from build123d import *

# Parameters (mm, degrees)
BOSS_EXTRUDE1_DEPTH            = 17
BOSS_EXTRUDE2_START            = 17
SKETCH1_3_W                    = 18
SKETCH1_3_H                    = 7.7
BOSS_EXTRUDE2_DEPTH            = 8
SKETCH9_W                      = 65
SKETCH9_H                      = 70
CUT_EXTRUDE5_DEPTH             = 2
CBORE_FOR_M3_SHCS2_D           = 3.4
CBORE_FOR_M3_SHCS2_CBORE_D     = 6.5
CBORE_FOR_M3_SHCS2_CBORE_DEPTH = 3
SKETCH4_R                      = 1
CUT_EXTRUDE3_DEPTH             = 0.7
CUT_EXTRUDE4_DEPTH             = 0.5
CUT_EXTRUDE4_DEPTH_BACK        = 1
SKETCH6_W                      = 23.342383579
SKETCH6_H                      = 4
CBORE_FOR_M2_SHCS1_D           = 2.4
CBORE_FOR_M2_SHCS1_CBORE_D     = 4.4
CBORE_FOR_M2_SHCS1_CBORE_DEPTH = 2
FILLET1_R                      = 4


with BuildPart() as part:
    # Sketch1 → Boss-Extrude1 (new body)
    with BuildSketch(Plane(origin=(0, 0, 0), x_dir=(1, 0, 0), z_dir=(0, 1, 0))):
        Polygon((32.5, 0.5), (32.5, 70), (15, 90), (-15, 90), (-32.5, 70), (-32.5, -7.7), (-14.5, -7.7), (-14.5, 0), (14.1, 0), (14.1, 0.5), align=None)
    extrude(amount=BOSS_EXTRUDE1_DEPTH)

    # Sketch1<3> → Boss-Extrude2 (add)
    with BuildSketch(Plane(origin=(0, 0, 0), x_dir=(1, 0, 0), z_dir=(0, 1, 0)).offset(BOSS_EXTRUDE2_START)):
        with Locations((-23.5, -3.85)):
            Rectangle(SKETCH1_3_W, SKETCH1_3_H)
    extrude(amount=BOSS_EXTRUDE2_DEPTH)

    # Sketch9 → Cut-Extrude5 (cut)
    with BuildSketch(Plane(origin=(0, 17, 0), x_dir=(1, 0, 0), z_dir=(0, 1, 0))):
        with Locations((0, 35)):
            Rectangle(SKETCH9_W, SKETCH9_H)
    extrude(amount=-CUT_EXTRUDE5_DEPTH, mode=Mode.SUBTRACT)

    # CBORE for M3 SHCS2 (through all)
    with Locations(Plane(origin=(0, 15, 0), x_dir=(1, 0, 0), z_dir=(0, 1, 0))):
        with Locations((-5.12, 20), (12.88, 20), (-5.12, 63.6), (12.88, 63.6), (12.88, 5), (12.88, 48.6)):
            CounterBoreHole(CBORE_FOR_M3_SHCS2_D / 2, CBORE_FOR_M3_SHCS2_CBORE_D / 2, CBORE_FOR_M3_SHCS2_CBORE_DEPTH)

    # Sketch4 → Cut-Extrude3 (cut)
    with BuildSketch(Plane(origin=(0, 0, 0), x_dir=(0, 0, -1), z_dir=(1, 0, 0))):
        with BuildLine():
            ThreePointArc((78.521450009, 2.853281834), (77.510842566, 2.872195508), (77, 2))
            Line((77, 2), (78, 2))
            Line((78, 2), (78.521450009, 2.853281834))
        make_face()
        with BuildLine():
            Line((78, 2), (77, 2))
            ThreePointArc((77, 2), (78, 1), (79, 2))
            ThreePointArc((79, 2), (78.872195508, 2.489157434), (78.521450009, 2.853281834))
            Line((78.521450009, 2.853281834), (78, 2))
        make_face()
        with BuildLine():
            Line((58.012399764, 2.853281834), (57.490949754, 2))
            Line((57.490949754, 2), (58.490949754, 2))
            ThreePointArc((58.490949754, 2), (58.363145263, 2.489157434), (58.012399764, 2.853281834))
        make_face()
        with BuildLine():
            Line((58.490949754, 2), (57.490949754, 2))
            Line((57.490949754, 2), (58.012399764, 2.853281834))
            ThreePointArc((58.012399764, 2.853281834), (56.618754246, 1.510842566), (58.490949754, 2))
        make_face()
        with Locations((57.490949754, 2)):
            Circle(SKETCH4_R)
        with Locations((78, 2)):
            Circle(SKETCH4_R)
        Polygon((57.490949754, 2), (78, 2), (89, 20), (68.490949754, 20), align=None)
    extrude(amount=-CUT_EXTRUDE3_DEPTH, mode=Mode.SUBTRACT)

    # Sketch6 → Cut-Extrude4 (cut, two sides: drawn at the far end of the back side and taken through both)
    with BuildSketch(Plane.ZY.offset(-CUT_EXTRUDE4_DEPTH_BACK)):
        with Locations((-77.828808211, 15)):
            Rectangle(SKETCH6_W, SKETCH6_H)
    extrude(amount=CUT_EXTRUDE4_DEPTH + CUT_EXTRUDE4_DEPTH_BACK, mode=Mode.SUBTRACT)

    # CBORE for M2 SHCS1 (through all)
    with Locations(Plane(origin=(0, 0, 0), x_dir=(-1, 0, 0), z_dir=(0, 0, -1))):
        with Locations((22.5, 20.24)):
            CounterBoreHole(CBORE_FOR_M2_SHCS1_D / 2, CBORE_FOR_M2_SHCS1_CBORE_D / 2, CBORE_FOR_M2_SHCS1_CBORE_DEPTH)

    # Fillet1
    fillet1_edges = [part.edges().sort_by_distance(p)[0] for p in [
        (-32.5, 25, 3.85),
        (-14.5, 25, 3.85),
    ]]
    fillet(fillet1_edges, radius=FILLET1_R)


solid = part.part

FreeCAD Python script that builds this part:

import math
import FreeCAD as App
import Part
import Sketcher


def edges_at(feature, points):
    """Names of the edges that pass closest to the given points."""
    edges = feature.Shape.Edges
    near = lambda p: min(range(len(edges)), key=lambda i: edges[i].distToShape(Part.Vertex(*p))[0])
    return sorted({f"Edge{near(p) + 1}" for p in points})


def add_polygon(sketch, points):
    """Adds a closed chain of lines whose ends are joined by coincident constraints."""
    first, n = sketch.GeometryCount, len(points)
    for a, b in zip(points, points[1:] + points[:1]):
        sketch.addGeometry(Part.LineSegment(App.Vector(*a, 0), App.Vector(*b, 0)), False)
    for i in range(n):
        sketch.addConstraint(Sketcher.Constraint("Coincident", first + i, 2, first + (i + 1) % n, 1))

doc = App.newDocument("Part")
body = doc.addObject("PartDesign::Body", "Body")

sketch1 = doc.addObject("Sketcher::SketchObject", "Sketch")
body.addObject(sketch1)
sketch1.AttachmentSupport = (doc.XZ_Plane, [""])
sketch1.MapMode = "FlatFace"
add_polygon(sketch1, [(32.5, -0.5), (32.5, -70), (15, -90), (-15, -90), (-32.5, -70), (-32.5, 7.7), (-14.5, 7.7), (-14.5, 0), (14.1, 0), (14.1, -0.5)])
sketch1.addConstraint(Sketcher.Constraint("Vertical", 0))
sketch1.addConstraint(Sketcher.Constraint("Horizontal", 2))
sketch1.addConstraint(Sketcher.Constraint("Vertical", 4))
sketch1.addConstraint(Sketcher.Constraint("Horizontal", 5))
sketch1.addConstraint(Sketcher.Constraint("Vertical", 6))
sketch1.addConstraint(Sketcher.Constraint("Horizontal", 7))
sketch1.addConstraint(Sketcher.Constraint("Vertical", 8))
sketch1.addConstraint(Sketcher.Constraint("Horizontal", 9))
sketch1.addConstraint(Sketcher.Constraint("Symmetric", 0, 2, 3, 2, -2))
sketch1.addConstraint(Sketcher.Constraint("PointOnObject", 6, 2, -1))
sketch1.addConstraint(Sketcher.Constraint("Equal", 1, 3))
sketch1.addConstraint(Sketcher.Constraint("DistanceX", 2, 2, 2, 1, 30.0))
sketch1.addConstraint(Sketcher.Constraint("DistanceX", 5, 1, 5, 2, 18.0))
sketch1.addConstraint(Sketcher.Constraint("DistanceX", 7, 1, 7, 2, 28.6))
sketch1.addConstraint(Sketcher.Constraint("DistanceX", 9, 1, 9, 2, 18.4))
sketch1.addConstraint(Sketcher.Constraint("DistanceY", 0, 2, 0, 1, 69.5))
sketch1.addConstraint(Sketcher.Constraint("DistanceY", 4, 1, 4, 2, 77.7))
sketch1.addConstraint(Sketcher.Constraint("DistanceY", 6, 2, 6, 1, 7.7))
sketch1.addConstraint(Sketcher.Constraint("DistanceY", 1, 2, -1, 1, 90.0))
pad1 = doc.addObject("PartDesign::Pad", "Pad")
body.addObject(pad1)
pad1.Profile = sketch1
pad1.Length = 17
pad1.Reversed = True

sketch2 = doc.addObject("Sketcher::SketchObject", "Sketch001")
body.addObject(sketch2)
sketch2.AttachmentSupport = (doc.XZ_Plane, [""])
sketch2.MapMode = "FlatFace"
sketch2.AttachmentOffset = App.Placement(App.Vector(0, 0, -17), App.Rotation())
add_polygon(sketch2, [(-32, 0), (-32, 8), (-14, 8), (-14, 0)])
sketch2.addConstraint(Sketcher.Constraint("Vertical", 0))
sketch2.addConstraint(Sketcher.Constraint("Horizontal", 1))
sketch2.addConstraint(Sketcher.Constraint("Vertical", 2))
sketch2.addConstraint(Sketcher.Constraint("Horizontal", 3))
sketch2.addConstraint(Sketcher.Constraint("PointOnObject", 2, 2, -1))
sketch2.addConstraint(Sketcher.Constraint("DistanceX", 1, 1, 1, 2, 18.0))
sketch2.addConstraint(Sketcher.Constraint("DistanceY", 0, 1, 0, 2, 7.7))
sketch2.addConstraint(Sketcher.Constraint("DistanceX", 0, 2, -1, 1, 32.5))
pad2 = doc.addObject("PartDesign::Pad", "Pad001")
body.addObject(pad2)
pad2.Profile = sketch2
pad2.Length = 8
pad2.Reversed = True

sketch3 = doc.addObject("Sketcher::SketchObject", "Sketch002")
body.addObject(sketch3)
sketch3.AttachmentSupport = (doc.XZ_Plane, [""])
sketch3.MapMode = "FlatFace"
sketch3.AttachmentOffset = App.Placement(App.Vector(0, 0, -17), App.Rotation())
add_polygon(sketch3, [(-32, -70), (-32, 0), (32, 0), (32, -70)])
sketch3.addConstraint(Sketcher.Constraint("Vertical", 0))
sketch3.addConstraint(Sketcher.Constraint("Horizontal", 1))
sketch3.addConstraint(Sketcher.Constraint("Vertical", 2))
sketch3.addConstraint(Sketcher.Constraint("Horizontal", 3))
sketch3.addConstraint(Sketcher.Constraint("Symmetric", 0, 2, 1, 2, -1, 1))
sketch3.addConstraint(Sketcher.Constraint("DistanceX", 1, 1, 1, 2, 65.0))
sketch3.addConstraint(Sketcher.Constraint("DistanceY", 0, 1, 0, 2, 70.0))
pocket1 = doc.addObject("PartDesign::Pocket", "Pocket")
body.addObject(pocket1)
pocket1.Profile = sketch3
pocket1.Length = 2
pocket1.Reversed = True

sketch4 = doc.addObject("Sketcher::SketchObject", "Sketch003")
body.addObject(sketch4)
sketch4.AttachmentSupport = (doc.XZ_Plane, [""])
sketch4.MapMode = "FlatFace"
sketch4.AttachmentOffset = App.Placement(App.Vector(0, 0, -15), App.Rotation())
sketch4.addGeometry(Part.Circle(App.Vector(-5.1, -20, 0), App.Vector(0, 0, 1), 1.7), False)
sketch4.addGeometry(Part.Circle(App.Vector(12.9, -20, 0), App.Vector(0, 0, 1), 1.7), False)
sketch4.addGeometry(Part.Circle(App.Vector(-5.1, -63.6, 0), App.Vector(0, 0, 1), 1.7), False)
sketch4.addGeometry(Part.Circle(App.Vector(12.9, -63.6, 0), App.Vector(0, 0, 1), 1.7), False)
sketch4.addGeometry(Part.Circle(App.Vector(12.9, -5, 0), App.Vector(0, 0, 1), 1.7), False)
sketch4.addGeometry(Part.Circle(App.Vector(12.9, -48.6, 0), App.Vector(0, 0, 1), 1.7), False)
sketch4.addConstraint(Sketcher.Constraint("Equal", 0, 1))
sketch4.addConstraint(Sketcher.Constraint("Equal", 1, 2))
sketch4.addConstraint(Sketcher.Constraint("Equal", 2, 3))
sketch4.addConstraint(Sketcher.Constraint("Equal", 3, 4))
sketch4.addConstraint(Sketcher.Constraint("Equal", 4, 5))
sketch4.addConstraint(Sketcher.Constraint("Horizontal", 0, 3, 1, 3))
sketch4.addConstraint(Sketcher.Constraint("Horizontal", 2, 3, 3, 3))
sketch4.addConstraint(Sketcher.Constraint("Vertical", 0, 3, 2, 3))
sketch4.addConstraint(Sketcher.Constraint("Vertical", 1, 3, 3, 3))
sketch4.addConstraint(Sketcher.Constraint("Vertical", 3, 3, 4, 3))
sketch4.addConstraint(Sketcher.Constraint("Vertical", 4, 3, 5, 3))
sketch4.addConstraint(Sketcher.Constraint("Diameter", 0, 3.4))
sketch4.addConstraint(Sketcher.Constraint("DistanceY", 0, 3, -1, 1, 20.0))
sketch4.addConstraint(Sketcher.Constraint("DistanceY", 4, 3, -1, 1, 5.0))
sketch4.addConstraint(Sketcher.Constraint("DistanceX", 0, 3, 1, 3, 18.0))
sketch4.addConstraint(Sketcher.Constraint("DistanceY", 3, 3, 5, 3, 15.0))
sketch4.addConstraint(Sketcher.Constraint("DistanceY", 2, 3, -1, 1, 63.6))
sketch4.addConstraint(Sketcher.Constraint("DistanceX", 0, 3, -1, 1, 5.12))
doc.recompute()
hole = doc.addObject("PartDesign::Hole", "Hole")
body.addObject(hole)
hole.Profile = sketch4
hole.ThreadType = "None"
hole.Diameter = 3.4
hole.DepthType = "ThroughAll"
hole.HoleCutType = "Counterbore"
hole.HoleCutDiameter = 6.5
hole.HoleCutDepth = 3
hole.Reversed = True

sketch5 = doc.addObject("Sketcher::SketchObject", "Sketch004")
body.addObject(sketch5)
sketch5.AttachmentSupport = (doc.YZ_Plane, [""])
sketch5.MapMode = "FlatFace"
sketch5.addGeometry(Part.ArcOfCircle(Part.Circle(App.Vector(2, -78, 0), App.Vector(0, 0, 1), 1), math.radians(-90), math.radians(-31)), False)
sketch5.addGeometry(Part.LineSegment(App.Vector(2.9, -78.5, 0), App.Vector(20, -89, 0)), False)
sketch5.addGeometry(Part.LineSegment(App.Vector(20, -89, 0), App.Vector(20, -68.5, 0)), False)
sketch5.addGeometry(Part.LineSegment(App.Vector(20, -68.5, 0), App.Vector(2.9, -58, 0)), False)
sketch5.addGeometry(Part.ArcOfCircle(Part.Circle(App.Vector(2, -57.5, 0), App.Vector(0, 0, 1), 1), math.radians(-31), math.radians(270)), False)
sketch5.addGeometry(Part.LineSegment(App.Vector(2, -58.5, 0), App.Vector(2, -77, 0)), False)
sketch5.addGeometry(Part.ArcOfCircle(Part.Circle(App.Vector(2, -78, 0), App.Vector(0, 0, 1), 1), math.radians(90), math.radians(270)), False)
sketch5.addConstraint(Sketcher.Constraint("Coincident", 0, 2, 1, 1))
sketch5.addConstraint(Sketcher.Constraint("Coincident", 1, 2, 2, 1))
sketch5.addConstraint(Sketcher.Constraint("Coincident", 2, 2, 3, 1))
sketch5.addConstraint(Sketcher.Constraint("Coincident", 3, 2, 4, 1))
sketch5.addConstraint(Sketcher.Constraint("Coincident", 4, 2, 5, 1))
sketch5.addConstraint(Sketcher.Constraint("Coincident", 5, 2, 6, 1))
sketch5.addConstraint(Sketcher.Constraint("Tangent", 6, 2, 0, 1))
sketch5.addConstraint(Sketcher.Constraint("Vertical", 2))
sketch5.addConstraint(Sketcher.Constraint("Vertical", 5))
sketch5.addConstraint(Sketcher.Constraint("Equal", 0, 4))
sketch5.addConstraint(Sketcher.Constraint("Equal", 4, 6))
sketch5.addConstraint(Sketcher.Constraint("Parallel", 1, 3))
sketch5.addConstraint(Sketcher.Constraint("Vertical", 0, 3, 4, 3))
sketch5.addConstraint(Sketcher.Constraint("Vertical", 0, 2, 3, 2))
sketch5.addConstraint(Sketcher.Constraint("Vertical", 6, 3, 4, 2))
sketch5.addConstraint(Sketcher.Constraint("Vertical", 5, 2, 6, 2))
sketch5.addConstraint(Sketcher.Constraint("Radius", 0, 1.0))
sketch5.addConstraint(Sketcher.Constraint("DistanceX", -1, 1, 0, 3, 2.0))
sketch5.addConstraint(Sketcher.Constraint("DistanceY", 0, 3, -1, 1, 78.0))
sketch5.addConstraint(Sketcher.Constraint("DistanceX", -1, 1, 1, 2, 20.0))
sketch5.addConstraint(Sketcher.Constraint("DistanceY", 1, 2, -1, 1, 89.0))
sketch5.addConstraint(Sketcher.Constraint("DistanceY", 2, 1, 2, 2, 20.50905))
sketch5.addConstraint(Sketcher.Constraint("DistanceY", 3, 2, -1, 1, 58.0124))
pocket2 = doc.addObject("PartDesign::Pocket", "Pocket001")
body.addObject(pocket2)
pocket2.Profile = sketch5
pocket2.Length = 0.7

sketch6 = doc.addObject("Sketcher::SketchObject", "Sketch005")
body.addObject(sketch6)
sketch6.AttachmentSupport = (doc.YZ_Plane, [""])
sketch6.MapMode = "FlatFace"
add_polygon(sketch6, [(17, -89.5), (13, -89.5), (13, -66.2), (17, -66.2)])
sketch6.addConstraint(Sketcher.Constraint("Horizontal", 0))
sketch6.addConstraint(Sketcher.Constraint("Vertical", 1))
sketch6.addConstraint(Sketcher.Constraint("Horizontal", 2))
sketch6.addConstraint(Sketcher.Constraint("Vertical", 3))
sketch6.addConstraint(Sketcher.Constraint("DistanceX", 0, 2, 0, 1, 4.0))
sketch6.addConstraint(Sketcher.Constraint("DistanceX", -1, 1, 0, 2, 13.0))
sketch6.addConstraint(Sketcher.Constraint("DistanceY", 0, 2, -1, 1, 89.5))
sketch6.addConstraint(Sketcher.Constraint("DistanceY", 1, 1, 1, 2, 23.342384))
pocket3 = doc.addObject("PartDesign::Pocket", "Pocket002")
body.addObject(pocket3)
pocket3.Profile = sketch6
pocket3.Type = "TwoLengths"
pocket3.Length = 0.5
pocket3.Length2 = 1

sketch7 = doc.addObject("Sketcher::SketchObject", "Sketch006")
body.addObject(sketch7)
sketch7.AttachmentSupport = (doc.XY_Plane, [""])
sketch7.MapMode = "FlatFace"
sketch7.addGeometry(Part.Circle(App.Vector(-22.5, 20.2, 0), App.Vector(0, 0, 1), 1.2), False)
sketch7.addConstraint(Sketcher.Constraint("Diameter", 0, 2.4))
sketch7.addConstraint(Sketcher.Constraint("DistanceX", 0, 3, -1, 1, 22.5))
sketch7.addConstraint(Sketcher.Constraint("DistanceY", -1, 1, 0, 3, 20.24))
doc.recompute()
hole2 = doc.addObject("PartDesign::Hole", "Hole001")
body.addObject(hole2)
hole2.Profile = sketch7
hole2.ThreadType = "None"
hole2.Diameter = 2.4
hole2.DepthType = "ThroughAll"
hole2.HoleCutType = "Counterbore"
hole2.HoleCutDiameter = 4.4
hole2.HoleCutDepth = 2
hole2.Reversed = True
doc.recompute()

fillet = doc.addObject("PartDesign::Fillet", "Fillet")
body.addObject(fillet)
fillet.Base = (hole2, edges_at(hole2, [(-32.5, 25, 3.85), (-14.5, 25, 3.85)]))
fillet.Radius = 4

doc.recompute()
